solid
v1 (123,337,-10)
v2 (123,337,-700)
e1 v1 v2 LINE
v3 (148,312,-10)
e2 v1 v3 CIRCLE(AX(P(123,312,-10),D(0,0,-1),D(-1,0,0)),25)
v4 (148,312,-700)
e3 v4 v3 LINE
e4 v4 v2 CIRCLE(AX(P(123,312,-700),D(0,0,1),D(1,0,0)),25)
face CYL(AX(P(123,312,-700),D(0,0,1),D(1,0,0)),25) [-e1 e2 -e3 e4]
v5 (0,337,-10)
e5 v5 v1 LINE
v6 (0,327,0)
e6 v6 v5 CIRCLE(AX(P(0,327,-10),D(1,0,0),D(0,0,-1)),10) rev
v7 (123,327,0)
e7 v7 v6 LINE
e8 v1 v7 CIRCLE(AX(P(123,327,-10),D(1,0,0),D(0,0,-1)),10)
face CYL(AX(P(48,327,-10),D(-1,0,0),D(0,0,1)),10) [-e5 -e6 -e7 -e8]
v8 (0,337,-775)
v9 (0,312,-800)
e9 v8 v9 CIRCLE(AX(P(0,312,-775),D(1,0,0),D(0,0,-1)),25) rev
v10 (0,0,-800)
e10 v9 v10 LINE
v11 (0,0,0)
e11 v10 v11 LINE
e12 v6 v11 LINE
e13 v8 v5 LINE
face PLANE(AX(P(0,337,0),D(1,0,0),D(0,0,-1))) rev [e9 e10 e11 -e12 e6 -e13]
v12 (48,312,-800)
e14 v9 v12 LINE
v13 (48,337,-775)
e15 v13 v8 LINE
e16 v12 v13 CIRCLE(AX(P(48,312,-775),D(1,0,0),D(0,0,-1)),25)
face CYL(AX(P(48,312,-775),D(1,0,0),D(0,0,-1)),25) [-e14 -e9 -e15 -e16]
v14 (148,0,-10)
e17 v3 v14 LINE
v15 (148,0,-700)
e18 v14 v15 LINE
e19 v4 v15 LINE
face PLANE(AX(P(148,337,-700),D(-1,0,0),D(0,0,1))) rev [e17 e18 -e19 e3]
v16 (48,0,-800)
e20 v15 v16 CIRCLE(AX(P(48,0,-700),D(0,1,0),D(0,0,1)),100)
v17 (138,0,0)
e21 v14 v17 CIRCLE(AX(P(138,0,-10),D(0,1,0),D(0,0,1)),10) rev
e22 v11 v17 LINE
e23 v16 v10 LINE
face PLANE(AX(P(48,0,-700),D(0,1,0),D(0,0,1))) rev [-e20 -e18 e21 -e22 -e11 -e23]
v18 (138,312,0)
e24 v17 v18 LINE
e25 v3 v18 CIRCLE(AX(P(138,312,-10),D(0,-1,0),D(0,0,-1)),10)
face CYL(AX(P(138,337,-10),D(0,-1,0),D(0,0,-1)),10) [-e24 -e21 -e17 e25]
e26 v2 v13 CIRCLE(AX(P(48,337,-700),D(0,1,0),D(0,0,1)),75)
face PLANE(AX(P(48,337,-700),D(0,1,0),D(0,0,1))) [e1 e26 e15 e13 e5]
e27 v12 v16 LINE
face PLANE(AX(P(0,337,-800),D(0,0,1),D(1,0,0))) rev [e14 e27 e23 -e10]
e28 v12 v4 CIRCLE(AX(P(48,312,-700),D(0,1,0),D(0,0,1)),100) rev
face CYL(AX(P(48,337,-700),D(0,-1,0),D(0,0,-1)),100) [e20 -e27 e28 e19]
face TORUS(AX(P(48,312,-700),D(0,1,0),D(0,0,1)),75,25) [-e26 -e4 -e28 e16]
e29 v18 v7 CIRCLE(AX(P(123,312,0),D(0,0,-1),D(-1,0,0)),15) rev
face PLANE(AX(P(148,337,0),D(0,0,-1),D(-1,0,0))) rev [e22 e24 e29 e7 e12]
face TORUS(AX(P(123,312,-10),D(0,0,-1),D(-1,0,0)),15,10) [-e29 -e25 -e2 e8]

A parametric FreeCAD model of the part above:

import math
import FreeCAD as App
import Part
import Sketcher
from FreeCAD import Vector


def edges_at(feature, points):
    """Names of the edges that pass closest to the given points."""
    edges = feature.Shape.Edges
    near = lambda p: min(range(len(edges)), key=lambda i: edges[i].distToShape(Part.Vertex(*p))[0])
    return sorted({f"Edge{near(p) + 1}" for p in points})

doc = App.newDocument("Part")
body = doc.addObject("PartDesign::Body", "Body")

# Sketch on XZ plane
sketch1 = body.newObject("Sketcher::SketchObject", "Sketch")
sketch1.AttachmentSupport = (doc.getObject("XZ_Plane"), [""])
sketch1.MapMode = "FlatFace"
sketch1.addGeometry(Part.LineSegment(Vector(0, -800, 0), Vector(0, 0, 0)), False)
sketch1.addGeometry(Part.LineSegment(Vector(0, 0, 0), Vector(148, 0, 0)), False)
sketch1.addGeometry(Part.LineSegment(Vector(148, 0, 0), Vector(148, -700, 0)), False)
sketch1.addGeometry(Part.ArcOfCircle(Part.Circle(Vector(48, -700, 0), Vector(0, 0, 1), 100), math.radians(-90), math.radians(0)), False)
sketch1.addGeometry(Part.LineSegment(Vector(48, -800, 0), Vector(0, -800, 0)), False)
sketch1.addConstraint(Sketcher.Constraint("Coincident", 0, 2, 1, 1))
sketch1.addConstraint(Sketcher.Constraint("Coincident", 1, 2, 2, 1))
sketch1.addConstraint(Sketcher.Constraint("Tangent", 2, 2, 3, 2))
sketch1.addConstraint(Sketcher.Constraint("Tangent", 3, 1, 4, 1))
sketch1.addConstraint(Sketcher.Constraint("Coincident", 4, 2, 0, 1))
sketch1.addConstraint(Sketcher.Constraint("Vertical", 0))
sketch1.addConstraint(Sketcher.Constraint("Horizontal", 1))
sketch1.addConstraint(Sketcher.Constraint("Vertical", 2))
sketch1.addConstraint(Sketcher.Constraint("Horizontal", 4))
sketch1.addConstraint(Sketcher.Constraint("Coincident", 0, 2, -1, 1))
sketch1.addConstraint(Sketcher.Constraint("Radius", 3, 100.0))
sketch1.addConstraint(Sketcher.Constraint("DistanceX", 1, 1, 1, 2, 148.0))
sketch1.addConstraint(Sketcher.Constraint("DistanceY", 0, 1, 0, 2, 800.0))
pad1 = body.newObject("PartDesign::Pad", "Pad")
pad1.Profile = sketch1
pad1.Length = 337
pad1.Reversed = True
doc.recompute()

fillet = body.newObject("PartDesign::Fillet", "Fillet")
fillet.Base = (pad1, edges_at(pad1, [(118.711, 337, -770.711), (24, 337, -800), (148, 337, -350)]))
fillet.Radius = 25
doc.recompute()

fillet2 = body.newObject("PartDesign::Fillet", "Fillet001")
fillet2.Base = (fillet, edges_at(fillet, [(148, 156, 0), (140.678, 329.678, 0), (61.5, 337, 0)]))
fillet2.Radius = 10

doc.recompute()
